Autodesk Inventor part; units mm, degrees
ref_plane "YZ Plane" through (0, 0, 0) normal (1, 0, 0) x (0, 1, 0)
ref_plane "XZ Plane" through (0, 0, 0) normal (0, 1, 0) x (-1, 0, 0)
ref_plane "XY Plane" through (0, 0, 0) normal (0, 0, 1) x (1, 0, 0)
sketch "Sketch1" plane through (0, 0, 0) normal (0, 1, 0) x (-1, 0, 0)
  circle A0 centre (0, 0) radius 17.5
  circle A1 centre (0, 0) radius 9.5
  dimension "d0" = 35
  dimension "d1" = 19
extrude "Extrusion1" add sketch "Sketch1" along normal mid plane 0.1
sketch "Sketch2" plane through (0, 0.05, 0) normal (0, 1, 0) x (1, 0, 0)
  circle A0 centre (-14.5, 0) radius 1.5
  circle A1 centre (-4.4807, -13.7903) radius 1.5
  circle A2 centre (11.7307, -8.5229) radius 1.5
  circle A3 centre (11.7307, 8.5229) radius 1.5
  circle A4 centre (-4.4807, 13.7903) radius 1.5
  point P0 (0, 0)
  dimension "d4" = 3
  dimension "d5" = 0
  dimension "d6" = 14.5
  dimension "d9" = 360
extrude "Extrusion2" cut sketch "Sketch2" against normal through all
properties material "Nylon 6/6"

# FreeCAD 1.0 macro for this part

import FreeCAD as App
import Part
import Sketcher

V = App.Vector
Q = App.Units.Quantity

doc = App.newDocument("Part")
body = doc.addObject("PartDesign::Body", "Body")

# Sketch on XZ plane
sketch1 = body.newObject("Sketcher::SketchObject", "Sketch")
sketch1.AttachmentSupport = (doc.getObject("XZ_Plane"), [""])
sketch1.MapMode = "FlatFace"
sketch1.addGeometry(Part.Circle(V(0, 0, 0), V(0, 0, 1), 18), False)
sketch1.addGeometry(Part.Circle(V(0, 0, 0), V(0, 0, 1), 10), False)
sketch1.addConstraint(Sketcher.Constraint("Coincident", 0, 3, -1, 1))
sketch1.addConstraint(Sketcher.Constraint("Coincident", 1, 3, -1, 1))
sketch1.addConstraint(Sketcher.Constraint("Diameter", 0, Q("35 mm")))
sketch1.addConstraint(Sketcher.Constraint("Diameter", 1, Q("19 mm")))
pad1 = body.newObject("PartDesign::Pad", "Pad")
pad1.Profile = sketch1
pad1.Length = 0.1
pad1.Midplane = True

# Sketch on XZ plane
sketch2 = body.newObject("Sketcher::SketchObject", "Sketch001")
sketch2.AttachmentSupport = (doc.getObject("XZ_Plane"), [""])
sketch2.MapMode = "FlatFace"
sketch2.AttachmentOffset = App.Placement(V(0, 0, -0.05), App.Rotation())
sketch2.addGeometry(Part.Circle(V(-14.5, 0, 0), V(0, 0, 1), 1.5), False)
sketch2.addGeometry(Part.Circle(V(-4.5, 13.8, 0), V(0, 0, 1), 1.5), False)
sketch2.addGeometry(Part.Circle(V(11.7, 8.5, 0), V(0, 0, 1), 1.5), False)
sketch2.addGeometry(Part.Circle(V(11.7, -8.5, 0), V(0, 0, 1), 1.5), False)
sketch2.addGeometry(Part.Circle(V(-4.5, -13.8, 0), V(0, 0, 1), 1.5), False)
sketch2.addConstraint(Sketcher.Constraint("Equal", 0, 1))
sketch2.addConstraint(Sketcher.Constraint("Equal", 1, 2))
sketch2.addConstraint(Sketcher.Constraint("Equal", 2, 3))
sketch2.addConstraint(Sketcher.Constraint("Equal", 3, 4))
sketch2.addConstraint(Sketcher.Constraint("Symmetric", 2, 3, 3, 3, -1))
sketch2.addConstraint(Sketcher.Constraint("Symmetric", 1, 3, 4, 3, -1))
sketch2.addConstraint(Sketcher.Constraint("PointOnObject", 0, 3, -1))
sketch2.addConstraint(Sketcher.Constraint("Diameter", 0, Q("3 mm")))
sketch2.addConstraint(Sketcher.Constraint("DistanceX", 0, 3, -1, 1, Q("14.5 mm")))
sketch2.addConstraint(Sketcher.Constraint("DistanceY", -1, 1, 2, 3, Q("8.523 mm")))
sketch2.addConstraint(Sketcher.Constraint("DistanceX", 1, 3, -1, 1, Q("4.4807 mm")))
sketch2.addConstraint(Sketcher.Constraint("DistanceY", -1, 1, 1, 3, Q("13.7903 mm")))
sketch2.addConstraint(Sketcher.Constraint("DistanceX", -1, 1, 2, 3, Q("11.7307 mm")))
pocket1 = body.newObject("PartDesign::Pocket", "Pocket")
pocket1.Profile = sketch2
pocket1.Type = "ThroughAll"
pocket1.Reversed = True

doc.recompute()
